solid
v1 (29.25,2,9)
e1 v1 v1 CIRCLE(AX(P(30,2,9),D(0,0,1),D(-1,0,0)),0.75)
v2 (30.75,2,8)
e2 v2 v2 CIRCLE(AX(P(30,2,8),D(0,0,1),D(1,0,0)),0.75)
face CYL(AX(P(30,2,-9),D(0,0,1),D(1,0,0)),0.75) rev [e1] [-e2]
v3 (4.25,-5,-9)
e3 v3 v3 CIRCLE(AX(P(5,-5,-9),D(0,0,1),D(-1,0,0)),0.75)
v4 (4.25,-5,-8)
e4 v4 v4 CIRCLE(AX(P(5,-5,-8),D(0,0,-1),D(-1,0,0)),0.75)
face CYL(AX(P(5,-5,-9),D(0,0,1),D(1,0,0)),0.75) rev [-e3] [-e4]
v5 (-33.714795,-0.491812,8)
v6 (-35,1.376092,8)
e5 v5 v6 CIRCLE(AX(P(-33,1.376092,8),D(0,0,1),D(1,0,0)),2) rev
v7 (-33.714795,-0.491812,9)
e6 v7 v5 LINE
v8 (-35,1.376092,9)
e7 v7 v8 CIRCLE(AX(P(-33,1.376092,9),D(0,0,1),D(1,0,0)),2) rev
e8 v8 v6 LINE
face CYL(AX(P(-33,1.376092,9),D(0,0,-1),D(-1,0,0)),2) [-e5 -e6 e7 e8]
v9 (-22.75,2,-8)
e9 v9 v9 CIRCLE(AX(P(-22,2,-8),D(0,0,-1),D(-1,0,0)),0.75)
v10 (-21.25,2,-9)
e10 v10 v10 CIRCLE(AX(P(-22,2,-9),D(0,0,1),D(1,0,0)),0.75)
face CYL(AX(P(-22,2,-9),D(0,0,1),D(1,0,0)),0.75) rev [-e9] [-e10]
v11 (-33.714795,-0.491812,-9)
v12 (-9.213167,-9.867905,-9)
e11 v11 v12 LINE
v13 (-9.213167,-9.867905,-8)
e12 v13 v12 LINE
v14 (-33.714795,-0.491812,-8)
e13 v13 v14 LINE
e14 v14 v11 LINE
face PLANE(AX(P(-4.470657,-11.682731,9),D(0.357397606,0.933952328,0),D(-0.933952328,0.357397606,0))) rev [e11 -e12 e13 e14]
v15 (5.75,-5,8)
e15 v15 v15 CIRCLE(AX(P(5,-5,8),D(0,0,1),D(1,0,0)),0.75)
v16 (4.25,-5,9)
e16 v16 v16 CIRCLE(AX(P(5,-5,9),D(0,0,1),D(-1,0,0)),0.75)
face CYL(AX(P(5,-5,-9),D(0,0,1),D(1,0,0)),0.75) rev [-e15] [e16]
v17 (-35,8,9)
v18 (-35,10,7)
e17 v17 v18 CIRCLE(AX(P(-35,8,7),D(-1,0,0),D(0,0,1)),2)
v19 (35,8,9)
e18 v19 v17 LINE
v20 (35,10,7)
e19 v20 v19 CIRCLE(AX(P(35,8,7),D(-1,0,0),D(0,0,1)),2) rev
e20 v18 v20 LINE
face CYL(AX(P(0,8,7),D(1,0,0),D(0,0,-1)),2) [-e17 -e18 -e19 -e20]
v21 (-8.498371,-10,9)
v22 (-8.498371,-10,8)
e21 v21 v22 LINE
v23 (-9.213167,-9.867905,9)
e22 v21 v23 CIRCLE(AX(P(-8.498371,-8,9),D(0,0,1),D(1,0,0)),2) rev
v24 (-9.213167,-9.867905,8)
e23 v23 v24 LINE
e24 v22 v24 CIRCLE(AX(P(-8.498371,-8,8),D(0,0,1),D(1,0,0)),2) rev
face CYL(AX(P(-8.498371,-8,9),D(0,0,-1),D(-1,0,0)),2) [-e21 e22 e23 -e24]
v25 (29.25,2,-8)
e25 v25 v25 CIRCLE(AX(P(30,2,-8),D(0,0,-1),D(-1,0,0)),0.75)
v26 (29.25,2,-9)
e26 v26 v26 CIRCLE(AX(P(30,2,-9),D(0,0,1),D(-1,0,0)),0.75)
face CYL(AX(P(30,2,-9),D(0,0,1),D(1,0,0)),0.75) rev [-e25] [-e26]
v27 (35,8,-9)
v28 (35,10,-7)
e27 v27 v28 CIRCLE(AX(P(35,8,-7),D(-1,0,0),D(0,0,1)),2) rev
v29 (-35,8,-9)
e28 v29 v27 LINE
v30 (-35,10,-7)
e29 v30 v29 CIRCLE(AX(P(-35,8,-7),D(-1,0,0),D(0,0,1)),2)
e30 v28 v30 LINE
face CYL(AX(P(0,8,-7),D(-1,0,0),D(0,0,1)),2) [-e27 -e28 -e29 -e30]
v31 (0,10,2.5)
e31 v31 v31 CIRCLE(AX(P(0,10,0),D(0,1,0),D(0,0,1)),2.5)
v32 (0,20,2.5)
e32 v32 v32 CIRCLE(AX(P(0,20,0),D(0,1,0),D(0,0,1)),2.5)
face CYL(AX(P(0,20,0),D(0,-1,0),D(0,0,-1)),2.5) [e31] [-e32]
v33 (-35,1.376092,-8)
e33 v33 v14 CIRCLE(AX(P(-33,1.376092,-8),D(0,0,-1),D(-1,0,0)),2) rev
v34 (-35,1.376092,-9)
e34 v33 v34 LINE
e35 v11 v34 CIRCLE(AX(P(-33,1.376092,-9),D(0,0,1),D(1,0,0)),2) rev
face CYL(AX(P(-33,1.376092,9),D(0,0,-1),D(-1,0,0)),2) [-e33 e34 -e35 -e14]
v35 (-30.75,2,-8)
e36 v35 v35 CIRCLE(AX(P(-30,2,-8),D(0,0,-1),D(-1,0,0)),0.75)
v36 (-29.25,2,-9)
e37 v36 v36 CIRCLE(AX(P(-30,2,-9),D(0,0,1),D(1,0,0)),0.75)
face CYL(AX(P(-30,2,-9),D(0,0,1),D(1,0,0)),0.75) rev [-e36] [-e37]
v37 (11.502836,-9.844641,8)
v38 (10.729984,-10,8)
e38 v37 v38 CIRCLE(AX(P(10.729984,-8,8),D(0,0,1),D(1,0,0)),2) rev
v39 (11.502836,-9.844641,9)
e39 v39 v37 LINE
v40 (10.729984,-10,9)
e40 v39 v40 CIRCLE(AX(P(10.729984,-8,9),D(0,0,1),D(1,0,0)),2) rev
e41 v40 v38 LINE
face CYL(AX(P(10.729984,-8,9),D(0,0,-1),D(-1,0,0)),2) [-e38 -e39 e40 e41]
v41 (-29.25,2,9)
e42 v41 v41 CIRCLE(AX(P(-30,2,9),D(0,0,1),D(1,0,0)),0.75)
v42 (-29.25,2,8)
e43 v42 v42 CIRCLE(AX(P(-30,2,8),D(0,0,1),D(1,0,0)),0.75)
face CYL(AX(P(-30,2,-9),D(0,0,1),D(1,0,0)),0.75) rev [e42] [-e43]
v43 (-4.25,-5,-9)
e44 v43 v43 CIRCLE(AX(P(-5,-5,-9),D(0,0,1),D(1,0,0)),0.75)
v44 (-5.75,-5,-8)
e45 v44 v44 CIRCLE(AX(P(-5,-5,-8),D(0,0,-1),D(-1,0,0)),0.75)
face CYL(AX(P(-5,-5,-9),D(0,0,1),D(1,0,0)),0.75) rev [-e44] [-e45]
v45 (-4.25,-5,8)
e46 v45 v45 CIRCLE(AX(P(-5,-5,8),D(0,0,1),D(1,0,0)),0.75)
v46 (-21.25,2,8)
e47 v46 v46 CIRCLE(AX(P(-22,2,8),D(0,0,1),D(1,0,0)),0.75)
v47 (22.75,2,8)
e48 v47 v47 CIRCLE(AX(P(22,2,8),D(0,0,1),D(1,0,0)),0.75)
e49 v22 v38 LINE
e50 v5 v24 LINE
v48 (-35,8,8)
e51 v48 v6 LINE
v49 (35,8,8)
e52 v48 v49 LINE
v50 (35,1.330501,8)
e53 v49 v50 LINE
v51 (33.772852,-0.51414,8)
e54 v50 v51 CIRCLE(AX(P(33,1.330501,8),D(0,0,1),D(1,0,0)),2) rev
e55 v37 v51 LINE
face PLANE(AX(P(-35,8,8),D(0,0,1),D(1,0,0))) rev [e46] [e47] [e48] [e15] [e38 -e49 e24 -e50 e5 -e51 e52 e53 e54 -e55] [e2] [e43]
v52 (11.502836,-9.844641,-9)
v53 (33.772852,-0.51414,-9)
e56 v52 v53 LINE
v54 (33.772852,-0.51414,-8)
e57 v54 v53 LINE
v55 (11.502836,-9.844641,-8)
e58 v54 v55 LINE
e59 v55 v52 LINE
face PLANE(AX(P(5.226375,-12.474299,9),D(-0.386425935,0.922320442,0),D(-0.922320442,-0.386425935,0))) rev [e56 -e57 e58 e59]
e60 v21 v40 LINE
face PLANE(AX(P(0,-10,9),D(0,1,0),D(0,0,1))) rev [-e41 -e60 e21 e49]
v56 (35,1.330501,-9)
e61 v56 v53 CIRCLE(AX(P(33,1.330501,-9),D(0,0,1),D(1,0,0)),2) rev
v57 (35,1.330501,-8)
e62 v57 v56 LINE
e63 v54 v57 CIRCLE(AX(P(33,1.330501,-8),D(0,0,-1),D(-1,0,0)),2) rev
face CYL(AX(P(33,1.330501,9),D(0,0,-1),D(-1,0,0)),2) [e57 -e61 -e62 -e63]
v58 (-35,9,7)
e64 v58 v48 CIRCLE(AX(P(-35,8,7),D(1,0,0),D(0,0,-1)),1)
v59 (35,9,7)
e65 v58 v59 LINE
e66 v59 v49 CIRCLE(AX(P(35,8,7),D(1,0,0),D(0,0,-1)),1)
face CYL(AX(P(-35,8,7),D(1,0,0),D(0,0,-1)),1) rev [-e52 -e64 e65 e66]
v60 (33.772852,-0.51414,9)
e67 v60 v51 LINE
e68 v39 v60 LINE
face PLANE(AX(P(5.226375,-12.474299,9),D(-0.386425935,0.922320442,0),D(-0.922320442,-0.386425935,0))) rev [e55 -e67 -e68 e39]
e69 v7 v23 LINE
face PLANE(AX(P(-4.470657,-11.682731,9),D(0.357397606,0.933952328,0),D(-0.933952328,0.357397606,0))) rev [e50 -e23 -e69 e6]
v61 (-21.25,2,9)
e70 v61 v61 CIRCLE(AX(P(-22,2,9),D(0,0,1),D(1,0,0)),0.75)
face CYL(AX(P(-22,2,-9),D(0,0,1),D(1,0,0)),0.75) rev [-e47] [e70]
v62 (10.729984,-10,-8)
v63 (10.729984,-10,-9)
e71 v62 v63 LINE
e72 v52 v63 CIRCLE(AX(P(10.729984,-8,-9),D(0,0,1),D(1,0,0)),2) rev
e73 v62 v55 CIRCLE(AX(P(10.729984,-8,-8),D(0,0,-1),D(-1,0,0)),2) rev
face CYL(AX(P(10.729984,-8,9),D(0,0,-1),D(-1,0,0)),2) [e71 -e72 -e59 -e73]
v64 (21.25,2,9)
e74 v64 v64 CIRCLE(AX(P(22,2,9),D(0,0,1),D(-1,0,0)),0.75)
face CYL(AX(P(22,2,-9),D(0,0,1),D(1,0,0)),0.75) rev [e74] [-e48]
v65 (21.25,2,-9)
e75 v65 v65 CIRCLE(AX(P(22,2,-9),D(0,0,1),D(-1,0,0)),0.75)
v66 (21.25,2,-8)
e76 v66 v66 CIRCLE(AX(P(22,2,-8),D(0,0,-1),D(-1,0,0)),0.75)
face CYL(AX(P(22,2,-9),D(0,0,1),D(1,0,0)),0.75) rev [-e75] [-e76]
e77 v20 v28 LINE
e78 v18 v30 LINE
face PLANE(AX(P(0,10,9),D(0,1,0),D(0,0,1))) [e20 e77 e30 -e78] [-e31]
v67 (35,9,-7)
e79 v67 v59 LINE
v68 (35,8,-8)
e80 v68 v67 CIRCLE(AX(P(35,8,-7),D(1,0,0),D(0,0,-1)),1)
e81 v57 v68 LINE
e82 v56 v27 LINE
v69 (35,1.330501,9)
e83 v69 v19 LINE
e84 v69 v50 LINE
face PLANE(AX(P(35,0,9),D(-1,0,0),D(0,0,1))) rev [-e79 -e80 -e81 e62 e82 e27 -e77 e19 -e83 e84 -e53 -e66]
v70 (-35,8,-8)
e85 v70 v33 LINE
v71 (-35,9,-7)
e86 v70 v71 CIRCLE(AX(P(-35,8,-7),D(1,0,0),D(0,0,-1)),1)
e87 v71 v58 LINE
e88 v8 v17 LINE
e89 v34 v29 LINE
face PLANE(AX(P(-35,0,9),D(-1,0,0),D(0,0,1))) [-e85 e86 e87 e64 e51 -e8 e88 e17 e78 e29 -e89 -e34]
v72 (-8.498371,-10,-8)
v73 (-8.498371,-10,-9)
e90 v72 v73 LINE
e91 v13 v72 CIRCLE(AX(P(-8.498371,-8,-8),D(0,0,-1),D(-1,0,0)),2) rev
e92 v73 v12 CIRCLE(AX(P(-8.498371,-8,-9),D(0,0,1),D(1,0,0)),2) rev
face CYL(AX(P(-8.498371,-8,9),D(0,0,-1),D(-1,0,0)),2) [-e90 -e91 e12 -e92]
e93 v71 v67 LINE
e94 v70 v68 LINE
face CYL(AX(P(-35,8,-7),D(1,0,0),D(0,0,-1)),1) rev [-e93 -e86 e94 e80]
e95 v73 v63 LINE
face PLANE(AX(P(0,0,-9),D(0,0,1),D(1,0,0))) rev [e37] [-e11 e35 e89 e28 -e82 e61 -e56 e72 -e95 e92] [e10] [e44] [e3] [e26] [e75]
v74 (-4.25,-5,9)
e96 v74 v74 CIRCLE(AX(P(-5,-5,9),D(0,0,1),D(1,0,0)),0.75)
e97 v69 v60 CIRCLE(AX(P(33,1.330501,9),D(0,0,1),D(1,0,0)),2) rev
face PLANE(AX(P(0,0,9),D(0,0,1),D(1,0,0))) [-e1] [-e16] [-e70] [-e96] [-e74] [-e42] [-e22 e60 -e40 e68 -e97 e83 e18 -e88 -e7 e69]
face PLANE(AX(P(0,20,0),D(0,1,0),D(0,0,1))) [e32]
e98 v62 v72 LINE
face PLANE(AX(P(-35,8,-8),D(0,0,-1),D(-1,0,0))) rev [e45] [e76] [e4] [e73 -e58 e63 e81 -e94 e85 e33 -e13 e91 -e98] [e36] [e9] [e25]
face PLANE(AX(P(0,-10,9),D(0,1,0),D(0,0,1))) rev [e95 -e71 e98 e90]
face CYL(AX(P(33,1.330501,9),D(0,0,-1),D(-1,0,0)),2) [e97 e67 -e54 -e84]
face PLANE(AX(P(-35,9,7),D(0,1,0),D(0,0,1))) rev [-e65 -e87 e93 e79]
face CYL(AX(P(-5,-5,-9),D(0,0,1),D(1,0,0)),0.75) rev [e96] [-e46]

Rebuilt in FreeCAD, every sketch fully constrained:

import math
import FreeCAD as App
import Part
import Sketcher
from FreeCAD import Vector
Q = App.Units.Quantity


def edges_at(feature, points):
    """Names of the edges that pass closest to the given points."""
    edges = feature.Shape.Edges
    near = lambda p: min(range(len(edges)), key=lambda i: edges[i].distToShape(Part.Vertex(*p))[0])
    return sorted({f"Edge{near(p) + 1}" for p in points})

doc = App.newDocument("Part")
params = doc.addObject("Spreadsheet::Sheet", "Params")
for row, (alias, value) in enumerate([
    ("sketch1_radius", "2 mm"),
    ("sketch1_width", "70 mm"),
    ("pad1_length", "18 mm"),
    ("fillet_radius", "2 mm"),
    ("sketch2_radius", "1 mm"),
    ("sketch2_height", "16 mm"),
    ("sketch3_diameter", "5 mm"),
    ("pad2_length", "10 mm"),
    ("sketch4_diameter", "1.5 mm"),
], start=1):
    params.set(f"A{row}", alias)
    params.set(f"B{row}", "=" + value)
    params.setAlias(f"B{row}", alias)

body = doc.addObject("PartDesign::Body", "Body")

# Sketch on XY plane
sketch1 = body.newObject("Sketcher::SketchObject", "Sketch")
sketch1.AttachmentSupport = (doc.getObject("XY_Plane"), [""])
sketch1.MapMode = "FlatFace"
sketch1.addGeometry([
    Part.ArcOfCircle(Part.Circle(Vector(-33, 1.4, 0), Vector(0, 0, 1), 2), math.radians(180), math.radians(249)),  # 0
    Part.LineSegment(Vector(-33.7, -0.5, 0), Vector(-9.2, -9.9, 0)),  # 1
    Part.ArcOfCircle(Part.Circle(Vector(-8.5, -8, 0), Vector(0, 0, 1), 2), math.radians(-111), math.radians(-90)),  # 2
    Part.LineSegment(Vector(-8.5, -10, 0), Vector(10.7, -10, 0)),  # 3
    Part.ArcOfCircle(Part.Circle(Vector(10.7, -8, 0), Vector(0, 0, 1), 2), math.radians(-90), math.radians(-67)),  # 4
    Part.LineSegment(Vector(11.5, -9.8, 0), Vector(33.8, -0.5, 0)),  # 5
    Part.ArcOfCircle(Part.Circle(Vector(33, 1.3, 0), Vector(0, 0, 1), 2), math.radians(-67), math.radians(0)),  # 6
    Part.LineSegment(Vector(35, 1.3, 0), Vector(35, 10, 0)),  # 7
    Part.LineSegment(Vector(35, 10, 0), Vector(-35, 10, 0)),  # 8
    Part.LineSegment(Vector(-35, 10, 0), Vector(-35, 1.4, 0)),  # 9
], False)
sketch1.addConstraint([
    Sketcher.Constraint("Tangent", 0, 2, 1, 1),
    Sketcher.Constraint("Tangent", 1, 2, 2, 1),
    Sketcher.Constraint("Tangent", 2, 2, 3, 1),
    Sketcher.Constraint("Tangent", 3, 2, 4, 1),
    Sketcher.Constraint("Tangent", 4, 2, 5, 1),
    Sketcher.Constraint("Tangent", 5, 2, 6, 1),
    Sketcher.Constraint("Tangent", 6, 2, 7, 1),
    Sketcher.Constraint("Coincident", 7, 2, 8, 1),
    Sketcher.Constraint("Coincident", 8, 2, 9, 1),
    Sketcher.Constraint("Tangent", 9, 2, 0, 1),
    Sketcher.Constraint("Horizontal", 3),
    Sketcher.Constraint("Vertical", 7),
    Sketcher.Constraint("Horizontal", 8),
    Sketcher.Constraint("Vertical", 9),
    Sketcher.Constraint("Equal", 0, 2),
    Sketcher.Constraint("Equal", 2, 4),
    Sketcher.Constraint("Equal", 4, 6),
    Sketcher.Constraint("Radius", 0, Q("2 mm")),
    Sketcher.Constraint("DistanceX", 8, 2, 8, 1, Q("70 mm")),
    Sketcher.Constraint("DistanceX", 0, 3, -1, 1, Q("33 mm")),
    Sketcher.Constraint("DistanceY", 2, 3, -1, 1, Q("8 mm")),
    Sketcher.Constraint("DistanceY", -1, 1, 7, 2, Q("10 mm")),
    Sketcher.Constraint("DistanceY", 7, 1, 7, 2, Q("8.669499 mm")),
    Sketcher.Constraint("Distance", 5, Q("24.145638 mm")),
    Sketcher.Constraint("DistanceX", 3, 1, 3, 2, Q("19.228356 mm")),
    Sketcher.Constraint("DistanceY", 9, 2, 9, 1, Q("8.623908 mm")),
])
sketch1.setExpression("Constraints[17]", "Params.sketch1_radius")
sketch1.setExpression("Constraints[18]", "Params.sketch1_width")
pad1 = body.newObject("PartDesign::Pad", "Pad")
pad1.Profile = sketch1
pad1.setExpression("Length", "Params.pad1_length")
pad1.Midplane = True
doc.recompute()

fillet = body.newObject("PartDesign::Fillet", "Fillet")
fillet.Base = (pad1, edges_at(pad1, [(0, 10, -9), (0, 10, 9)]))
fillet.setExpression("Radius", "Params.fillet_radius")

# Sketch on YZ plane
sketch2 = body.newObject("Sketcher::SketchObject", "Sketch001")
sketch2.AttachmentSupport = (doc.getObject("YZ_Plane"), [""])
sketch2.MapMode = "FlatFace"
sketch2.addGeometry([
    Part.LineSegment(Vector(8, 8, 0), Vector(-14.2, 8, 0)),  # 0
    Part.LineSegment(Vector(-14.2, 8, 0), Vector(-14.2, -8, 0)),  # 1
    Part.LineSegment(Vector(-14.2, -8, 0), Vector(8, -8, 0)),  # 2
    Part.ArcOfCircle(Part.Circle(Vector(8, -7, 0), Vector(0, 0, 1), 1), math.radians(-90), math.radians(0)),  # 3
    Part.LineSegment(Vector(9, -7, 0), Vector(9, 7, 0)),  # 4
    Part.ArcOfCircle(Part.Circle(Vector(8, 7, 0), Vector(0, 0, 1), 1), math.radians(0), math.radians(90)),  # 5
], False)
sketch2.addConstraint([
    Sketcher.Constraint("Coincident", 0, 2, 1, 1),
    Sketcher.Constraint("Coincident", 1, 2, 2, 1),
    Sketcher.Constraint("Tangent", 2, 2, 3, 1),
    Sketcher.Constraint("Tangent", 3, 2, 4, 1),
    Sketcher.Constraint("Tangent", 4, 2, 5, 1),
    Sketcher.Constraint("Tangent", 5, 2, 0, 1),
    Sketcher.Constraint("Horizontal", 0),
    Sketcher.Constraint("Vertical", 1),
    Sketcher.Constraint("Horizontal", 2),
    Sketcher.Constraint("Vertical", 4),
    Sketcher.Constraint("Equal", 3, 5),
    Sketcher.Constraint("Radius", 3, Q("1 mm")),
    Sketcher.Constraint("DistanceY", 1, 2, 1, 1, Q("16 mm")),
    Sketcher.Constraint("DistanceX", -1, 1, 3, 3, Q("8 mm")),
    Sketcher.Constraint("DistanceY", 3, 3, -1, 1, Q("7 mm")),
    Sketcher.Constraint("DistanceX", 0, 2, 0, 1, Q("22.234257 mm")),
])
sketch2.setExpression("Constraints[11]", "Params.sketch2_radius")
sketch2.setExpression("Constraints[12]", "Params.sketch2_height")
pocket1 = body.newObject("PartDesign::Pocket", "Pocket")
pocket1.Profile = sketch2
pocket1.Type = "ThroughAll"
pocket1.Midplane = True

# Sketch on XZ plane
sketch3 = body.newObject("Sketcher::SketchObject", "Sketch002")
sketch3.AttachmentSupport = (doc.getObject("XZ_Plane"), [""])
sketch3.MapMode = "FlatFace"
sketch3.AttachmentOffset = App.Placement(Vector(0, 0, -10), App.Rotation())
sketch3.addGeometry(Part.Circle(Vector(0, 0, 0), Vector(0, 0, 1), 2.5), False)
sketch3.addConstraint([
    Sketcher.Constraint("Coincident", 0, 3, -1, 1),
    Sketcher.Constraint("Diameter", 0, Q("5 mm")),
])
sketch3.setExpression("Constraints[1]", "Params.sketch3_diameter")
pad2 = body.newObject("PartDesign::Pad", "Pad001")
pad2.Profile = sketch3
pad2.setExpression("Length", "Params.pad2_length")
pad2.Reversed = True

# Sketch on XY plane
sketch4 = body.newObject("Sketcher::SketchObject", "Sketch003")
sketch4.AttachmentSupport = (doc.getObject("XY_Plane"), [""])
sketch4.MapMode = "FlatFace"
sketch4.addGeometry([
    Part.Circle(Vector(-30, 2, 0), Vector(0, 0, 1), 0.8),  # 0
    Part.Circle(Vector(-22, 2, 0), Vector(0, 0, 1), 0.8),  # 1
    Part.Circle(Vector(-5, -5, 0), Vector(0, 0, 1), 0.8),  # 2
    Part.Circle(Vector(5, -5, 0), Vector(0, 0, 1), 0.8),  # 3
    Part.Circle(Vector(22, 2, 0), Vector(0, 0, 1), 0.8),  # 4
    Part.Circle(Vector(30, 2, 0), Vector(0, 0, 1), 0.8),  # 5
], False)
sketch4.addConstraint([
    Sketcher.Constraint("Equal", 0, 1),
    Sketcher.Constraint("Equal", 1, 2),
    Sketcher.Constraint("Equal", 2, 3),
    Sketcher.Constraint("Equal", 3, 4),
    Sketcher.Constraint("Equal", 4, 5),
    Sketcher.Constraint("Symmetric", 2, 3, 3, 3, -2),
    Sketcher.Constraint("Symmetric", 1, 3, 4, 3, -2),
    Sketcher.Constraint("Symmetric", 0, 3, 5, 3, -2),
    Sketcher.Constraint("Horizontal", 0, 3, 1, 3),
    Sketcher.Constraint("Diameter", 0, Q("1.5 mm")),
    Sketcher.Constraint("DistanceX", 0, 3, -1, 1, Q("30 mm")),
    Sketcher.Constraint("DistanceY", -1, 1, 0, 3, Q("2 mm")),
    Sketcher.Constraint("DistanceX", 1, 3, -1, 1, Q("22 mm")),
    Sketcher.Constraint("DistanceX", 2, 3, -1, 1, Q("5 mm")),
    Sketcher.Constraint("DistanceY", 2, 3, -1, 1, Q("5 mm")),
])
sketch4.setExpression("Constraints[9]", "Params.sketch4_diameter")
pocket2 = body.newObject("PartDesign::Pocket", "Pocket001")
pocket2.Profile = sketch4
pocket2.Type = "ThroughAll"
pocket2.Midplane = True

doc.recompute()
